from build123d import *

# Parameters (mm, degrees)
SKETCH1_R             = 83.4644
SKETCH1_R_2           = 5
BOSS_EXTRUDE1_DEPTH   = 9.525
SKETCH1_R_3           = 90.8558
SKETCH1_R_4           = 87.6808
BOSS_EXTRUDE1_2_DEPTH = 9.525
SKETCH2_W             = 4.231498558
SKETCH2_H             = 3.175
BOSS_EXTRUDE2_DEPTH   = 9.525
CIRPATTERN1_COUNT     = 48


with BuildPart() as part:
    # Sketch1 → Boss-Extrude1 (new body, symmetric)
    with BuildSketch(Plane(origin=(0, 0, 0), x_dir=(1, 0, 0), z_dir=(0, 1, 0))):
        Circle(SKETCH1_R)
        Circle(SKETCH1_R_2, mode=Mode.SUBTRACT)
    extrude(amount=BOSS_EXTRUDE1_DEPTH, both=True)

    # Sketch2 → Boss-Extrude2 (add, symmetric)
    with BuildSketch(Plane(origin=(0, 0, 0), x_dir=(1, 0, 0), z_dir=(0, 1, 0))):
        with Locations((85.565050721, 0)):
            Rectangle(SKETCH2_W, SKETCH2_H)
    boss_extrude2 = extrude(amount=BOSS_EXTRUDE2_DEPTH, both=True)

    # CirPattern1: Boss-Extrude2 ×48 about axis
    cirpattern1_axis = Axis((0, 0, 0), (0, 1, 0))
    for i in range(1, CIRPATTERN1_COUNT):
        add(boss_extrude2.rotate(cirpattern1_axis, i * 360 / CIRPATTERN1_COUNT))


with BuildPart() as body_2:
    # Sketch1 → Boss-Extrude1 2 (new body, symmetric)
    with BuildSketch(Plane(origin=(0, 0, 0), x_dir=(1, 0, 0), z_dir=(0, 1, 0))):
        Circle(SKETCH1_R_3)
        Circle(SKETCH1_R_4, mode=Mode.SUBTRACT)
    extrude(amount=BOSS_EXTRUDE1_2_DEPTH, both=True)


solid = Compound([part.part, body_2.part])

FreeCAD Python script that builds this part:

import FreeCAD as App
import Part
import Sketcher
Q = App.Units.Quantity


def add_polygon(sketch, points):
    """Adds a closed chain of lines whose ends are joined by coincident constraints."""
    first, n = sketch.GeometryCount, len(points)
    for a, b in zip(points, points[1:] + points[:1]):
        sketch.addGeometry(Part.LineSegment(App.Vector(*a, 0), App.Vector(*b, 0)), False)
    for i in range(n):
        sketch.addConstraint(Sketcher.Constraint("Coincident", first + i, 2, first + (i + 1) % n, 1))

doc = App.newDocument("Part")
body = doc.addObject("PartDesign::Body", "Body")

# Sketch on XZ plane
sketch1 = body.newObject("Sketcher::SketchObject", "Sketch")
sketch1.AttachmentSupport = (doc.getObject("XZ_Plane"), [""])
sketch1.MapMode = "FlatFace"
sketch1.addGeometry([
    Part.Circle(App.Vector(0, 0, 0), App.Vector(0, 0, 1), 83.4644),
    Part.Circle(App.Vector(0, 0, 0), App.Vector(0, 0, 1), 5),
], False)
sketch1.addConstraint([
    Sketcher.Constraint("Coincident", 0, 3, -1, 1),
    Sketcher.Constraint("Coincident", 1, 3, -1, 1),
    Sketcher.Constraint("Diameter", 0, Q("6.572 in")),
    Sketcher.Constraint("Diameter", 1, Q("10 mm")),
])
pad1 = body.newObject("PartDesign::Pad", "Pad")
pad1.Profile = sketch1
pad1.Length = Q("0.75 in")
pad1.Midplane = True

# Sketch on XZ plane
sketch2 = body.newObject("Sketcher::SketchObject", "Sketch001")
sketch2.AttachmentSupport = (doc.getObject("XZ_Plane"), [""])
sketch2.MapMode = "FlatFace"
add_polygon(sketch2, [(83.449301, -1.5875), (83.449301, 1.5875), (87.6808, 1.5875), (87.6808, -1.5875)])  # lines 0-3
sketch2.addConstraint([
    Sketcher.Constraint("Vertical", 0),
    Sketcher.Constraint("Horizontal", 1),
    Sketcher.Constraint("Vertical", 2),
    Sketcher.Constraint("Horizontal", 3),
    Sketcher.Constraint("DistanceY", 0, 1, 0, 2, Q("0.125 in")),
    Sketcher.Constraint("DistanceY", -1, 1, 0, 2, Q("0.0625 in")),
    Sketcher.Constraint("DistanceX", -1, 1, 1, 2, Q("3.452 in")),
    Sketcher.Constraint("DistanceX", 1, 1, 1, 2, Q("4.231499 mm")),
])
pad2 = body.newObject("PartDesign::Pad", "Pad001")
pad2.Profile = sketch2
pad2.Length = Q("0.75 in")
pad2.Midplane = True
doc.recompute()

polarpattern = body.newObject("PartDesign::PolarPattern", "PolarPattern")
polarpattern.Originals = [pad2]
polarpattern.Axis = (doc.getObject("Y_Axis"), [""])
polarpattern.Angle = 360
polarpattern.Occurrences = 48
body.Tip = polarpattern
body2 = doc.addObject("PartDesign::Body", "Body001")

# Sketch on XZ plane
sketch3 = body2.newObject("Sketcher::SketchObject", "Sketch002")
sketch3.AttachmentSupport = (doc.getObject("XZ_Plane001"), [""])
sketch3.MapMode = "FlatFace"
sketch3.addGeometry([
    Part.Circle(App.Vector(0, 0, 0), App.Vector(0, 0, 1), 90.8558),
    Part.Circle(App.Vector(0, 0, 0), App.Vector(0, 0, 1), 87.6808),
], False)
sketch3.addConstraint([
    Sketcher.Constraint("Coincident", 0, 3, -1, 1),
    Sketcher.Constraint("Coincident", 1, 3, -1, 1),
    Sketcher.Constraint("Diameter", 0, Q("7.154 in")),
    Sketcher.Constraint("Diameter", 1, Q("6.904 in")),
])
pad3 = body2.newObject("PartDesign::Pad", "Pad002")
pad3.Profile = sketch3
pad3.Length = Q("0.75 in")
pad3.Midplane = True

doc.recompute()
